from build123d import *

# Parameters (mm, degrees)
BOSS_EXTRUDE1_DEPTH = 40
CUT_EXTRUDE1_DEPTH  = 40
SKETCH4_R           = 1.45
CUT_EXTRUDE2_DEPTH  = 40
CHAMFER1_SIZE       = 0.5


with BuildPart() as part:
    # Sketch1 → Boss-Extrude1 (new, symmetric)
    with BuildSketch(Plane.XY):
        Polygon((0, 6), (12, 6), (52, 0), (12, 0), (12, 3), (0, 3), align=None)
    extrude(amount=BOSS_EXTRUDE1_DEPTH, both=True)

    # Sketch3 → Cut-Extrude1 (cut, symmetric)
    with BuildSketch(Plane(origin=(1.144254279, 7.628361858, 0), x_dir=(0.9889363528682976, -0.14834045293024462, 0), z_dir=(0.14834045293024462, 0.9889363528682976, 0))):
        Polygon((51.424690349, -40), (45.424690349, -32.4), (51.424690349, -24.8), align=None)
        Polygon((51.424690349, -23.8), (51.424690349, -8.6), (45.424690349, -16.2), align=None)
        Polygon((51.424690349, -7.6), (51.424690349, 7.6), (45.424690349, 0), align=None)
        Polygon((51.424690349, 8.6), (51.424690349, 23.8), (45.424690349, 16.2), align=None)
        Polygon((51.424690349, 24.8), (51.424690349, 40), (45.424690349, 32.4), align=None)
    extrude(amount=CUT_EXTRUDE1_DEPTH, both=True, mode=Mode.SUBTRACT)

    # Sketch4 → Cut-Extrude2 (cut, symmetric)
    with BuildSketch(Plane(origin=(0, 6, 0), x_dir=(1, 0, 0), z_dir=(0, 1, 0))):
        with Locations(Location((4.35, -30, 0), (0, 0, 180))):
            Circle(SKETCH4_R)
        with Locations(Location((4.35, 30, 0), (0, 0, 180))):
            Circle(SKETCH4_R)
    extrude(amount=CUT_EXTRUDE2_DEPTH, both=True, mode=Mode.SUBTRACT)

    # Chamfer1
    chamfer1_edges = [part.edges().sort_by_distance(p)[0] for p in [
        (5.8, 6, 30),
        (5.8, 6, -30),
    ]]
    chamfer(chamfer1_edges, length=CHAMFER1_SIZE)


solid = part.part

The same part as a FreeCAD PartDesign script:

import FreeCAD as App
import Part
import Sketcher

V = App.Vector


def edges_at(feature, points):
    """Names of the edges that pass closest to the given points."""
    edges = feature.Shape.Edges
    near = lambda p: min(range(len(edges)), key=lambda i: edges[i].distToShape(Part.Vertex(*p))[0])
    return sorted({f"Edge{near(p) + 1}" for p in points})


def add_polygon(sketch, points):
    """Adds a closed chain of lines whose ends are joined by coincident constraints."""
    first, n = sketch.GeometryCount, len(points)
    for a, b in zip(points, points[1:] + points[:1]):
        sketch.addGeometry(Part.LineSegment(App.Vector(*a, 0), App.Vector(*b, 0)), False)
    for i in range(n):
        sketch.addConstraint(Sketcher.Constraint("Coincident", first + i, 2, first + (i + 1) % n, 1))

doc = App.newDocument("Part")
params = doc.addObject("Spreadsheet::Sheet", "Params")
for row, (alias, value) in enumerate([
    ("sketch1_width", "12 mm"),
    ("sketch1_width2", "40 mm"),
    ("sketch1_height", "3 mm"),
    ("pad1_length", "80 mm"),
    ("sketch2_height", "15.2 mm"),
    ("pocket1_length", "80 mm"),
    ("sketch3_diameter", "2.9 mm"),
    ("pocket2_length", "80 mm"),
    ("chamfer_size", "0.5 mm"),
], start=1):
    params.set(f"A{row}", alias)
    params.set(f"B{row}", "=" + value)
    params.setAlias(f"B{row}", alias)

body = doc.addObject("PartDesign::Body", "Body")

# Sketch on XY plane
sketch1 = body.newObject("Sketcher::SketchObject", "Sketch")
sketch1.AttachmentSupport = (doc.getObject("XY_Plane"), [""])
sketch1.MapMode = "FlatFace"
add_polygon(sketch1, [(12, 6), (0, 6), (0, 3), (12, 3), (12, 0), (52, 0)])  # lines 0-5
sketch1.addConstraint([
    Sketcher.Constraint("Horizontal", 0),
    Sketcher.Constraint("Vertical", 1),
    Sketcher.Constraint("Horizontal", 2),
    Sketcher.Constraint("Vertical", 3),
    Sketcher.Constraint("Horizontal", 4),
    Sketcher.Constraint("PointOnObject", 0, 2, -2),
    Sketcher.Constraint("PointOnObject", 3, 2, -1),
    Sketcher.Constraint("Vertical", 3, 2, 5, 2),
    Sketcher.Constraint("Equal", 1, 3),
    Sketcher.Constraint("DistanceX", 0, 2, 0, 1, 12.0),
    Sketcher.Constraint("DistanceX", 4, 1, 4, 2, 40.0),
    Sketcher.Constraint("DistanceY", 1, 2, 1, 1, 3.0),
])
sketch1.setExpression("Constraints[15]", "Params.sketch1_width")
sketch1.setExpression("Constraints[16]", "Params.sketch1_width2")
sketch1.setExpression("Constraints[17]", "Params.sketch1_height")
pad1 = body.newObject("PartDesign::Pad", "Pad")
pad1.Profile = sketch1
pad1.setExpression("Length", "Params.pad1_length")
pad1.Midplane = True

# Sketch on an angled plane
sketch2 = body.newObject("Sketcher::SketchObject", "Sketch001")
sketch2.Placement = App.Placement(V(1.144254, 7.628362, 0), App.Rotation(V(0.988936353, -0.148340453, 0), V(0, 0, -1), V(0.148340453, 0.988936353, 0), "ZXY"))
add_polygon(sketch2, [(45.42469, -32.4), (51.42469, -40), (51.42469, -24.8)])  # lines 0-2
add_polygon(sketch2, [(51.42469, -23.8), (51.42469, -8.6), (45.42469, -16.2)])  # lines 3-5
add_polygon(sketch2, [(51.42469, -7.6), (51.42469, 7.6), (45.42469, 0)])  # lines 6-8
add_polygon(sketch2, [(51.42469, 8.6), (51.42469, 23.8), (45.42469, 16.2)])  # lines 9-11
add_polygon(sketch2, [(51.42469, 24.8), (51.42469, 40), (45.42469, 32.4)])  # lines 12-14
sketch2.addConstraint([
    Sketcher.Constraint("Vertical", 1),
    Sketcher.Constraint("Vertical", 3),
    Sketcher.Constraint("Vertical", 6),
    Sketcher.Constraint("Vertical", 9),
    Sketcher.Constraint("Vertical", 12),
    Sketcher.Constraint("Symmetric", 5, 2, 9, 2, -1),
    Sketcher.Constraint("Symmetric", 4, 2, 10, 2, -1),
    Sketcher.Constraint("Symmetric", 0, 2, 12, 2, -1),
    Sketcher.Constraint("Symmetric", 2, 2, 13, 2, -1),
    Sketcher.Constraint("PointOnObject", 7, 2, -1),
    Sketcher.Constraint("Parallel", 2, 4),
    Sketcher.Constraint("Parallel", 0, 5),
    Sketcher.Constraint("Parallel", 4, 7),
    Sketcher.Constraint("Parallel", 5, 8),
    Sketcher.Constraint("Parallel", 7, 10),
    Sketcher.Constraint("Parallel", 8, 11),
    Sketcher.Constraint("Parallel", 11, 14),
    Sketcher.Constraint("Vertical", 1, 2, 3, 2),
    Sketcher.Constraint("Vertical", 2, 2, 4, 2),
    Sketcher.Constraint("Vertical", 5, 2, 6, 2),
    Sketcher.Constraint("Vertical", 4, 2, 7, 2),
    Sketcher.Constraint("DistanceY", 1, 1, 1, 2, 15.2),
    Sketcher.Constraint("DistanceY", 0, 2, -1, 1, 40.0),
    Sketcher.Constraint("DistanceX", 2, 2, 0, 2, 6.0),
    Sketcher.Constraint("DistanceY", 1, 2, 5, 2, 1.0),
    Sketcher.Constraint("DistanceX", -1, 1, 0, 2, 51.42469),
])
sketch2.setExpression("Constraints[36]", "Params.sketch2_height")
pocket1 = body.newObject("PartDesign::Pocket", "Pocket")
pocket1.Profile = sketch2
pocket1.setExpression("Length", "Params.pocket1_length")
pocket1.Midplane = True

# Sketch on XZ plane
sketch3 = body.newObject("Sketcher::SketchObject", "Sketch002")
sketch3.AttachmentSupport = (doc.getObject("XZ_Plane"), [""])
sketch3.MapMode = "FlatFace"
sketch3.AttachmentOffset = App.Placement(V(0, 0, -6), App.Rotation())
sketch3.addGeometry([
    Part.Circle(V(4.35, 30, 0), V(0, 0, 1), 1.45),
    Part.Circle(V(4.35, -30, 0), V(0, 0, 1), 1.45),
], False)
sketch3.addConstraint([
    Sketcher.Constraint("Equal", 0, 1),
    Sketcher.Constraint("Symmetric", 0, 3, 1, 3, -1),
    Sketcher.Constraint("Diameter", 0, 2.9),
    Sketcher.Constraint("DistanceY", -1, 1, 0, 3, 30.0),
    Sketcher.Constraint("DistanceX", -1, 1, 0, 3, 4.35),
])
sketch3.setExpression("Constraints[2]", "Params.sketch3_diameter")
pocket2 = body.newObject("PartDesign::Pocket", "Pocket001")
pocket2.Profile = sketch3
pocket2.setExpression("Length", "Params.pocket2_length")
pocket2.Midplane = True
doc.recompute()

chamfer = body.newObject("PartDesign::Chamfer", "Chamfer")
chamfer.Base = (pocket2, edges_at(pocket2, [(5.8, 6, 30), (5.8, 6, -30)]))
chamfer.setExpression("Size", "Params.chamfer_size")

doc.recompute()
